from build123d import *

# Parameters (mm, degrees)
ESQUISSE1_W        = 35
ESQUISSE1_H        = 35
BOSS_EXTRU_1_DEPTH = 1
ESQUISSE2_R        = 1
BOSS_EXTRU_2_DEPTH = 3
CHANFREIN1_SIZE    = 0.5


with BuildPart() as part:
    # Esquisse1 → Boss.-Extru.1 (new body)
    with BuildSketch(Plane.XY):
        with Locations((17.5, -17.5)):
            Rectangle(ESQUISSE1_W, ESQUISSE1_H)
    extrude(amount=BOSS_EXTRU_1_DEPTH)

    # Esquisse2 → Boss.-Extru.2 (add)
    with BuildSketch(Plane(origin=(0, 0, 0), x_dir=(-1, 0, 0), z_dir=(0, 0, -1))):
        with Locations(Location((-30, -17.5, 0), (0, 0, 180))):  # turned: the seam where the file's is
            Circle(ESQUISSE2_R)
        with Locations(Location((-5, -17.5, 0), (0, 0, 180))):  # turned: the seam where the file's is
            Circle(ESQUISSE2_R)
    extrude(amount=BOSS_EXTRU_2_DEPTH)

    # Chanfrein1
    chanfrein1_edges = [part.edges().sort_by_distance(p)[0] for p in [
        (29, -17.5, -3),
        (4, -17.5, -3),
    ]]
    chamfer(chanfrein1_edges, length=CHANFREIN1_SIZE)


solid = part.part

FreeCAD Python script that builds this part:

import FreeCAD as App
import Part
import Sketcher

V = App.Vector


def edges_at(feature, points):
    """Names of the edges that pass closest to the given points."""
    edges = feature.Shape.Edges
    near = lambda p: min(range(len(edges)), key=lambda i: edges[i].distToShape(Part.Vertex(*p))[0])
    return sorted({f"Edge{near(p) + 1}" for p in points})


def add_polygon(sketch, points):
    """Adds a closed chain of lines whose ends are joined by coincident constraints."""
    first, n = sketch.GeometryCount, len(points)
    for a, b in zip(points, points[1:] + points[:1]):
        sketch.addGeometry(Part.LineSegment(App.Vector(*a, 0), App.Vector(*b, 0)), False)
    for i in range(n):
        sketch.addConstraint(Sketcher.Constraint("Coincident", first + i, 2, first + (i + 1) % n, 1))

doc = App.newDocument("Part")
body = doc.addObject("PartDesign::Body", "Body")

# Sketch on XY plane
sketch1 = body.newObject("Sketcher::SketchObject", "Sketch")
sketch1.AttachmentSupport = (doc.getObject("XY_Plane"), [""])
sketch1.MapMode = "FlatFace"
add_polygon(sketch1, [(0, 0), (0, -35), (35, -35), (35, 0)])  # lines 0-3
sketch1.addConstraint([
    Sketcher.Constraint("Vertical", 0),
    Sketcher.Constraint("Horizontal", 1),
    Sketcher.Constraint("Vertical", 2),
    Sketcher.Constraint("Horizontal", 3),
    Sketcher.Constraint("Coincident", 3, 2, -1, 1),
    Sketcher.Constraint("Equal", 3, 0),
    Sketcher.Constraint("DistanceX", 1, 1, 1, 2, 35.0),
])
pad1 = body.newObject("PartDesign::Pad", "Pad")
pad1.Profile = sketch1
pad1.Length = 1

# Sketch on XY plane
sketch2 = body.newObject("Sketcher::SketchObject", "Sketch001")
sketch2.AttachmentSupport = (doc.getObject("XY_Plane"), [""])
sketch2.MapMode = "FlatFace"
sketch2.addGeometry([
    Part.Circle(V(30, -17.5, 0), V(0, 0, 1), 1),
    Part.Circle(V(5, -17.5, 0), V(0, 0, 1), 1),
], False)
sketch2.addConstraint([
    Sketcher.Constraint("Equal", 0, 1),
    Sketcher.Constraint("Horizontal", 0, 3, 1, 3),
    Sketcher.Constraint("Diameter", 0, 2.0),
    Sketcher.Constraint("DistanceX", -1, 1, 0, 3, 30.0),
    Sketcher.Constraint("DistanceX", -1, 1, 1, 3, 5.0),
    Sketcher.Constraint("DistanceY", 0, 3, -1, 1, 17.5),
])
pad2 = body.newObject("PartDesign::Pad", "Pad001")
pad2.Profile = sketch2
pad2.Length = 3
pad2.Reversed = True
doc.recompute()

chamfer = body.newObject("PartDesign::Chamfer", "Chamfer")
chamfer.Base = (pad2, edges_at(pad2, [(29, -17.5, -3), (4, -17.5, -3)]))
chamfer.Size = 0.5

doc.recompute()
